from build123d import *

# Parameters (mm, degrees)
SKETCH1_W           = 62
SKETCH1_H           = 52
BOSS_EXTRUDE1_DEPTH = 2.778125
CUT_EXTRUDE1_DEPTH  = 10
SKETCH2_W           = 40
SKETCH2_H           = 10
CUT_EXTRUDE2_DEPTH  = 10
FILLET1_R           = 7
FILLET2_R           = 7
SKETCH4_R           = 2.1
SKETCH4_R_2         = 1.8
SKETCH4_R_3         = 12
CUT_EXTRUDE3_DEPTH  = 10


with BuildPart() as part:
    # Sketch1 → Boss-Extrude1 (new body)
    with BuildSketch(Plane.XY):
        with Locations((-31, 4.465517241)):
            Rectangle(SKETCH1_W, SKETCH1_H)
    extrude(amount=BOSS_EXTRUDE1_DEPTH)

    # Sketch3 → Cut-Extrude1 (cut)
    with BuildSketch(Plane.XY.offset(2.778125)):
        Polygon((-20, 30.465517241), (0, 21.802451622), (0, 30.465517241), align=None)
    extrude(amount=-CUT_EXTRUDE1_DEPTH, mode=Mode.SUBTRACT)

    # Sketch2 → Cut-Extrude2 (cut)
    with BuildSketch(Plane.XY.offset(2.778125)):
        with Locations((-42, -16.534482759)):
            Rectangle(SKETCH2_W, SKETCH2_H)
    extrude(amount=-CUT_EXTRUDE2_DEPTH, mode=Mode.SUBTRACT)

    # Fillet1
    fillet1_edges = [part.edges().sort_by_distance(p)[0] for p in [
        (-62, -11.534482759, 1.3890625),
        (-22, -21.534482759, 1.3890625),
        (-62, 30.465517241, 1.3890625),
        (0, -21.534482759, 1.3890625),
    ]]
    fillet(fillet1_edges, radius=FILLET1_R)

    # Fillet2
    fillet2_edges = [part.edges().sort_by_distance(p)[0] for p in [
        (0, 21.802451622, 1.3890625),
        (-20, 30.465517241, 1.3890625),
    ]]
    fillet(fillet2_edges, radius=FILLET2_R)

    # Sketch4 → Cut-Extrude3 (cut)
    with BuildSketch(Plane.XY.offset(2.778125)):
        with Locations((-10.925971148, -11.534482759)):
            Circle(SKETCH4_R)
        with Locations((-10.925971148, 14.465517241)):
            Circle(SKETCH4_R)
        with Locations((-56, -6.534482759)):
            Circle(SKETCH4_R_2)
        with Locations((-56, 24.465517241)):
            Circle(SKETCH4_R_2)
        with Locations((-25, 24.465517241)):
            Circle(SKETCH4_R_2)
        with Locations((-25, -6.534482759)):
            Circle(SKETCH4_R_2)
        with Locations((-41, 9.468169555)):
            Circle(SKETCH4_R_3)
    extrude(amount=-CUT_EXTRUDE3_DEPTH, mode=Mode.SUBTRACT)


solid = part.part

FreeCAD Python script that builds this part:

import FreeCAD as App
import Part
import Sketcher

V = App.Vector
Q = App.Units.Quantity


def edges_at(feature, points):
    """Names of the edges that pass closest to the given points."""
    edges = feature.Shape.Edges
    near = lambda p: min(range(len(edges)), key=lambda i: edges[i].distToShape(Part.Vertex(*p))[0])
    return sorted({f"Edge{near(p) + 1}" for p in points})


def add_polygon(sketch, points):
    """Adds a closed chain of lines whose ends are joined by coincident constraints."""
    first, n = sketch.GeometryCount, len(points)
    for a, b in zip(points, points[1:] + points[:1]):
        sketch.addGeometry(Part.LineSegment(App.Vector(*a, 0), App.Vector(*b, 0)), False)
    for i in range(n):
        sketch.addConstraint(Sketcher.Constraint("Coincident", first + i, 2, first + (i + 1) % n, 1))

doc = App.newDocument("Part")
body = doc.addObject("PartDesign::Body", "Body")

# Sketch on XY plane
sketch1 = body.newObject("Sketcher::SketchObject", "Sketch")
sketch1.AttachmentSupport = (doc.getObject("XY_Plane"), [""])
sketch1.MapMode = "FlatFace"
add_polygon(sketch1, [(-62, 30), (-62, -22), (0, -22), (0, 30)])  # lines 0-3
sketch1.addConstraint([
    Sketcher.Constraint("Vertical", 0),
    Sketcher.Constraint("Horizontal", 1),
    Sketcher.Constraint("Vertical", 2),
    Sketcher.Constraint("Horizontal", 3),
    Sketcher.Constraint("PointOnObject", 1, 2, -2),
    Sketcher.Constraint("DistanceX", 1, 1, 1, 2, 62.0),
    Sketcher.Constraint("DistanceY", 0, 2, 0, 1, 52.0),
    Sketcher.Constraint("DistanceY", 0, 2, -1, 1, 21.534483),
])
pad1 = body.newObject("PartDesign::Pad", "Pad")
pad1.Profile = sketch1
pad1.Length = 2.778125

# Sketch on XY plane
sketch2 = body.newObject("Sketcher::SketchObject", "Sketch001")
sketch2.AttachmentSupport = (doc.getObject("XY_Plane"), [""])
sketch2.MapMode = "FlatFace"
sketch2.AttachmentOffset = App.Placement(V(0, 0, 2.778125), App.Rotation())
add_polygon(sketch2, [(-20, 30), (0, 22), (0, 30)])  # lines 0-2
sketch2.addConstraint([
    Sketcher.Constraint("Vertical", 1),
    Sketcher.Constraint("Horizontal", 2),
    Sketcher.Constraint("PointOnObject", 0, 2, -2),
    Sketcher.Constraint("DistanceX", 2, 2, 2, 1, 20.0),
    Sketcher.Constraint("Angle", 0, Q("-23.420007 deg")),
    Sketcher.Constraint("DistanceY", -1, 1, 0, 2, 21.802452),
])
pocket1 = body.newObject("PartDesign::Pocket", "Pocket")
pocket1.Profile = sketch2
pocket1.Length = 10

# Sketch on XY plane
sketch3 = body.newObject("Sketcher::SketchObject", "Sketch002")
sketch3.AttachmentSupport = (doc.getObject("XY_Plane"), [""])
sketch3.MapMode = "FlatFace"
sketch3.AttachmentOffset = App.Placement(V(0, 0, 2.778125), App.Rotation())
add_polygon(sketch3, [(-62, -12), (-62, -22), (-22, -22), (-22, -12)])  # lines 0-3
sketch3.addConstraint([
    Sketcher.Constraint("Vertical", 0),
    Sketcher.Constraint("Horizontal", 1),
    Sketcher.Constraint("Vertical", 2),
    Sketcher.Constraint("Horizontal", 3),
    Sketcher.Constraint("DistanceX", 1, 1, 1, 2, 40.0),
    Sketcher.Constraint("DistanceY", 0, 2, 0, 1, 10.0),
    Sketcher.Constraint("DistanceX", 0, 2, -1, 1, 62.0),
    Sketcher.Constraint("DistanceY", 0, 2, -1, 1, 21.534483),
])
pocket2 = body.newObject("PartDesign::Pocket", "Pocket001")
pocket2.Profile = sketch3
pocket2.Length = 10
doc.recompute()

fillet = body.newObject("PartDesign::Fillet", "Fillet")
fillet.Base = (pocket2, edges_at(pocket2, [
    (-62, -11.534, 1.389),
    (-22, -21.534, 1.389),
    (-62, 30.466, 1.389),
    (0, -21.534, 1.389),
]))
fillet.Radius = 7
doc.recompute()

fillet2 = body.newObject("PartDesign::Fillet", "Fillet001")
fillet2.Base = (fillet, edges_at(fillet, [(0, 21.802, 1.389), (-20, 30.466, 1.389)]))
fillet2.Radius = 7

# Sketch on XY plane
sketch4 = body.newObject("Sketcher::SketchObject", "Sketch003")
sketch4.AttachmentSupport = (doc.getObject("XY_Plane"), [""])
sketch4.MapMode = "FlatFace"
sketch4.AttachmentOffset = App.Placement(V(0, 0, 2.778125), App.Rotation())
sketch4.addGeometry([
    Part.Circle(V(-10.9, -11.5, 0), V(0, 0, 1), 2.1),  # 0
    Part.Circle(V(-10.9, 14.5, 0), V(0, 0, 1), 2.1),  # 1
    Part.Circle(V(-56, -6.5, 0), V(0, 0, 1), 1.8),  # 2
    Part.Circle(V(-56, 24.5, 0), V(0, 0, 1), 1.8),  # 3
    Part.Circle(V(-25, 24.5, 0), V(0, 0, 1), 1.8),  # 4
    Part.Circle(V(-25, -6.5, 0), V(0, 0, 1), 1.8),  # 5
    Part.Circle(V(-41, 9.5, 0), V(0, 0, 1), 12),  # 6
], False)
sketch4.addConstraint([
    Sketcher.Constraint("Equal", 0, 1),
    Sketcher.Constraint("Equal", 2, 3),
    Sketcher.Constraint("Equal", 3, 4),
    Sketcher.Constraint("Equal", 4, 5),
    Sketcher.Constraint("Horizontal", 3, 3, 4, 3),
    Sketcher.Constraint("Horizontal", 2, 3, 5, 3),
    Sketcher.Constraint("Vertical", 0, 3, 1, 3),
    Sketcher.Constraint("Vertical", 2, 3, 3, 3),
    Sketcher.Constraint("Vertical", 4, 3, 5, 3),
    Sketcher.Constraint("Diameter", 6, 24.0),
    Sketcher.Constraint("Diameter", 0, 4.2),
    Sketcher.Constraint("Diameter", 2, 3.6),
    Sketcher.Constraint("DistanceX", 2, 3, -1, 1, 56.0),
    Sketcher.Constraint("DistanceX", 4, 3, -1, 1, 25.0),
    Sketcher.Constraint("DistanceX", 6, 3, -1, 1, 41.0),
    Sketcher.Constraint("DistanceY", 0, 3, 1, 3, 26.0),
    Sketcher.Constraint("DistanceY", 0, 3, 2, 3, 5.0),
    Sketcher.Constraint("DistanceY", 2, 3, 3, 3, 31.0),
    Sketcher.Constraint("DistanceX", 0, 3, -1, 1, 10.925971),
    Sketcher.Constraint("DistanceY", -1, 1, 6, 3, 9.46817),
    Sketcher.Constraint("DistanceY", 0, 3, -1, 1, 11.534483),
])
pocket3 = body.newObject("PartDesign::Pocket", "Pocket002")
pocket3.Profile = sketch4
pocket3.Length = 10

doc.recompute()
